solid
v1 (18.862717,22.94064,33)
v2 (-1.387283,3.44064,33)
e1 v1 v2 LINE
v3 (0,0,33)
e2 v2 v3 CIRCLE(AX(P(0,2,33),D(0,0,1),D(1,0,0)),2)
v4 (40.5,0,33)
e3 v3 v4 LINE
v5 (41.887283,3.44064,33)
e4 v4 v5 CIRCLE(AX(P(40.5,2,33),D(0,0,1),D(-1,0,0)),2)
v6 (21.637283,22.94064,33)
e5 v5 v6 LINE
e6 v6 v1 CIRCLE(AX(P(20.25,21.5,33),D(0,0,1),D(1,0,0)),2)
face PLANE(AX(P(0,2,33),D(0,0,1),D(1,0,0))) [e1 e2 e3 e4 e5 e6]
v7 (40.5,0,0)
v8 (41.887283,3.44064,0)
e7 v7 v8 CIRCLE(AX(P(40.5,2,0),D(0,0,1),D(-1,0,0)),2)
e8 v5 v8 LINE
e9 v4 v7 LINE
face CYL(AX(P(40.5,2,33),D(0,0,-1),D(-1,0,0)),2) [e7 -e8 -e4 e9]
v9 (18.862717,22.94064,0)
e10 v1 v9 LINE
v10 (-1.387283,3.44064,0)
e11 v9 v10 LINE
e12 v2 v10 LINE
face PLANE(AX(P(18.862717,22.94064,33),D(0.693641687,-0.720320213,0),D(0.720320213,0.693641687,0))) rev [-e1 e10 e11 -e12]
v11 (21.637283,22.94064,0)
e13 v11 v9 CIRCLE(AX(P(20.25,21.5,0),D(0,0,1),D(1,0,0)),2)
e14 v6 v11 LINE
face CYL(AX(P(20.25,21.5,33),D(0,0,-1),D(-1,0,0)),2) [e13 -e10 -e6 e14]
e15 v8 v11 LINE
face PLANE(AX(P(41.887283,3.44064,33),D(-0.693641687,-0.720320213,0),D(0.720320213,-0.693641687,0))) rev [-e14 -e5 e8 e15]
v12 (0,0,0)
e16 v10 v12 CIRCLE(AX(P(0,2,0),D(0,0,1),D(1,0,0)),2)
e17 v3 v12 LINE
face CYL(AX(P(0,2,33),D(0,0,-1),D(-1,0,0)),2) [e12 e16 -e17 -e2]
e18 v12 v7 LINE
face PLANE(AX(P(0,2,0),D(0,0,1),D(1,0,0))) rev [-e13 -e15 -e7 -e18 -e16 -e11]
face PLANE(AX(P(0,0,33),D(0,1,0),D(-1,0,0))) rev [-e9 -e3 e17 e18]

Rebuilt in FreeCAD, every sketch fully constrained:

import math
import FreeCAD as App
import Part
import Sketcher
from FreeCAD import Vector
Q = App.Units.Quantity

doc = App.newDocument("Part")
body = doc.addObject("PartDesign::Body", "Body")

sketch1 = doc.addObject("Sketcher::SketchObject", "Sketch")
body.addObject(sketch1)
sketch1.AttachmentSupport = (doc.XY_Plane, [""])
sketch1.MapMode = "FlatFace"
sketch1.addGeometry([
    Part.LineSegment(Vector(0, 0, 0), Vector(40.5, 0, 0)),
    Part.ArcOfCircle(Part.Circle(Vector(40.5, 2, 0), Vector(0, 0, 1), 2), math.radians(-90), math.radians(46)),
    Part.LineSegment(Vector(41.9, 3.4, 0), Vector(21.6, 22.9, 0)),
    Part.ArcOfCircle(Part.Circle(Vector(20.2, 21.5, 0), Vector(0, 0, 1), 2), math.radians(46), math.radians(134)),
    Part.LineSegment(Vector(18.9, 22.9, 0), Vector(-1.4, 3.4, 0)),
    Part.ArcOfCircle(Part.Circle(Vector(0, 2, 0), Vector(0, 0, 1), 2), math.radians(134), math.radians(270)),
], False)
sketch1.addConstraint([
    Sketcher.Constraint("Tangent", 0, 2, 1, 1),
    Sketcher.Constraint("Tangent", 1, 2, 2, 1),
    Sketcher.Constraint("Tangent", 2, 2, 3, 1),
    Sketcher.Constraint("Tangent", 3, 2, 4, 1),
    Sketcher.Constraint("Tangent", 4, 2, 5, 1),
    Sketcher.Constraint("Tangent", 5, 2, 0, 1),
    Sketcher.Constraint("Horizontal", 0),
    Sketcher.Constraint("Coincident", 5, 2, -1, 1),
    Sketcher.Constraint("Equal", 1, 3),
    Sketcher.Constraint("Equal", 3, 5),
    Sketcher.Constraint("Horizontal", 2, 2, 3, 2),
    Sketcher.Constraint("Radius", 1, Q("2 mm")),
    Sketcher.Constraint("DistanceX", 0, 1, 0, 2, Q("40.5 mm")),
    Sketcher.Constraint("DistanceY", -1, 1, 3, 3, Q("21.5 mm")),
])
pad1 = doc.addObject("PartDesign::Pad", "Pad")
body.addObject(pad1)
pad1.Profile = sketch1
pad1.Length = 33

doc.recompute()
